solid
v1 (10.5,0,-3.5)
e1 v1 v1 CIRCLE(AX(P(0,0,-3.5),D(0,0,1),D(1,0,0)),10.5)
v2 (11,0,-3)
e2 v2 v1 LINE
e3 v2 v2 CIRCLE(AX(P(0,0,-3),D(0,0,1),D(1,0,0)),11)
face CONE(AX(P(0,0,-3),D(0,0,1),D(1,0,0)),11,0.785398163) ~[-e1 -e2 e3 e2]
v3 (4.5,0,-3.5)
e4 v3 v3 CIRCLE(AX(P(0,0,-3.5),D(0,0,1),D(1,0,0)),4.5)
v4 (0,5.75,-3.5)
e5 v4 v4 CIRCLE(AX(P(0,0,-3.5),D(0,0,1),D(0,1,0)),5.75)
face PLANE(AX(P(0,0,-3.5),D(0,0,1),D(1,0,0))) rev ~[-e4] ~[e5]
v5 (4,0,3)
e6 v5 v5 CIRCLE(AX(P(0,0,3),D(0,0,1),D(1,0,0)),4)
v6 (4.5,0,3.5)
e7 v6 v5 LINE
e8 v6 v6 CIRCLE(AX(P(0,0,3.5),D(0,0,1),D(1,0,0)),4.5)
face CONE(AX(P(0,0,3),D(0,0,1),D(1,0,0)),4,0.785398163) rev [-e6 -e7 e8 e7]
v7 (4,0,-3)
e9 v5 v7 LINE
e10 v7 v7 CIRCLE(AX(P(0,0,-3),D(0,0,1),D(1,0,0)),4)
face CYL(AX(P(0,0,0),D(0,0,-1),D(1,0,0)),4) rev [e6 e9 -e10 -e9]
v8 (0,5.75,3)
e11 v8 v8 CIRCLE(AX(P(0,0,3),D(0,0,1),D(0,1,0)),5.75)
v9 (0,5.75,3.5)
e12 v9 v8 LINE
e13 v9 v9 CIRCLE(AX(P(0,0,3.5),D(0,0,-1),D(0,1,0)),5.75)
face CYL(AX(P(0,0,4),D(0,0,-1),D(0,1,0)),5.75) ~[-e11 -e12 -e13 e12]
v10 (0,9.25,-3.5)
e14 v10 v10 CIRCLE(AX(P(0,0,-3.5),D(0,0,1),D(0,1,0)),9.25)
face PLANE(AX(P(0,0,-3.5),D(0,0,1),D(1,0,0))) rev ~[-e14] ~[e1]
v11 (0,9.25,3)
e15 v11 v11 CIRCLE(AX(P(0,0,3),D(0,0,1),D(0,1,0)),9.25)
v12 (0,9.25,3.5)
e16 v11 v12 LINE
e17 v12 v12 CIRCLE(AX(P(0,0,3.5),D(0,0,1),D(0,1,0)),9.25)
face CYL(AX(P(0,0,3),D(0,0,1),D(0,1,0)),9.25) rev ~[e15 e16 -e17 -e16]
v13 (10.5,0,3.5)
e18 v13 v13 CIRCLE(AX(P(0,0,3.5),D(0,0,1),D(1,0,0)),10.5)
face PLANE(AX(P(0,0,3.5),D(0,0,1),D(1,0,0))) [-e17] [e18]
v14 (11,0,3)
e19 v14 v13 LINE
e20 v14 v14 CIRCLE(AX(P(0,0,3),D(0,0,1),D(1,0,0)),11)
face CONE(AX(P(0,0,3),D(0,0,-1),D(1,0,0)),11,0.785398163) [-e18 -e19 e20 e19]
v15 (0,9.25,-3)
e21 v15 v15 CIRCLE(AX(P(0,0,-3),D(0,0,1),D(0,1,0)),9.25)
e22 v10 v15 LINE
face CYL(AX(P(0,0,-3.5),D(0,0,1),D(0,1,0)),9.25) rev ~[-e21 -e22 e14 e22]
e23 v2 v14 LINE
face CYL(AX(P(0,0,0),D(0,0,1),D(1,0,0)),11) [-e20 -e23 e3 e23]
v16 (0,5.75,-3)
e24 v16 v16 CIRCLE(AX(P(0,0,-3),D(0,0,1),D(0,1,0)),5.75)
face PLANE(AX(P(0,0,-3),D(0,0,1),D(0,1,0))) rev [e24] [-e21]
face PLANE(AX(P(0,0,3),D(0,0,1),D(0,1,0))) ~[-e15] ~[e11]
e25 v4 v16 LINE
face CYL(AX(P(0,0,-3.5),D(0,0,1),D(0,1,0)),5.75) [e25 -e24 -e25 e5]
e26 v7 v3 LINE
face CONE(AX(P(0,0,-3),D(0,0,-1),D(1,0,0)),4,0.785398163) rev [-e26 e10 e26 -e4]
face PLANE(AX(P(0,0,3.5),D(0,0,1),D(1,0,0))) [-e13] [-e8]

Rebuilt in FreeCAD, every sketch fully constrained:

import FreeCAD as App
import Part
import Sketcher

V = App.Vector
Q = App.Units.Quantity


def edges_at(feature, points):
    """Names of the edges that pass closest to the given points."""
    edges = feature.Shape.Edges
    near = lambda p: min(range(len(edges)), key=lambda i: edges[i].distToShape(Part.Vertex(*p))[0])
    return sorted({f"Edge{near(p) + 1}" for p in points})


def add_polygon(sketch, points):
    """Adds a closed chain of lines whose ends are joined by coincident constraints."""
    first, n = sketch.GeometryCount, len(points)
    for a, b in zip(points, points[1:] + points[:1]):
        sketch.addGeometry(Part.LineSegment(App.Vector(*a, 0), App.Vector(*b, 0)), False)
    for i in range(n):
        sketch.addConstraint(Sketcher.Constraint("Coincident", first + i, 2, first + (i + 1) % n, 1))

doc = App.newDocument("Part")
params = doc.addObject("Spreadsheet::Sheet", "Params")
for row, (alias, value) in enumerate([
    ("sketch1_diameter", "22 mm"),
    ("sketch1_diameter2", "8 mm"),
    ("pad1_length", "7 mm"),
    ("chamfer_size", "0.5 mm"),
    ("sketch2_height", "1 mm"),
    ("sketch2_width", "3.5 mm"),
    ("groove_angle", "360 deg"),
], start=1):
    params.set(f"A{row}", alias)
    params.set(f"B{row}", "=" + value)
    params.setAlias(f"B{row}", alias)

body = doc.addObject("PartDesign::Body", "Body")

# Sketch on XY plane
sketch1 = doc.addObject("Sketcher::SketchObject", "Sketch")
body.addObject(sketch1)
sketch1.AttachmentSupport = (doc.XY_Plane, [""])
sketch1.MapMode = "FlatFace"
sketch1.addGeometry(Part.Circle(V(0, 0, 0), V(0, 0, 1), 11), False)
sketch1.addGeometry(Part.Circle(V(0, 0, 0), V(0, 0, 1), 4), False)
sketch1.addConstraint(Sketcher.Constraint("Coincident", 0, 3, -1, 1))
sketch1.addConstraint(Sketcher.Constraint("Coincident", 1, 3, -1, 1))
sketch1.addConstraint(Sketcher.Constraint("Diameter", 0, Q("22 mm")))
sketch1.addConstraint(Sketcher.Constraint("Diameter", 1, Q("8 mm")))
sketch1.setExpression("Constraints[2]", "Params.sketch1_diameter")
sketch1.setExpression("Constraints[3]", "Params.sketch1_diameter2")
pad1 = doc.addObject("PartDesign::Pad", "Pad")
body.addObject(pad1)
pad1.Profile = sketch1
pad1.setExpression("Length", "Params.pad1_length")
pad1.Midplane = True
doc.recompute()

chamfer = doc.addObject("PartDesign::Chamfer", "Chamfer")
body.addObject(chamfer)
chamfer.Base = (pad1, edges_at(pad1, [
    (-11, 0, 3.5),
    (-11, 0, -3.5),
    (-4, 0, 3.5),
    (-4, 0, -3.5),
]))
chamfer.setExpression("Size", "Params.chamfer_size")

# Sketch on YZ plane
sketch2 = doc.addObject("Sketcher::SketchObject", "Sketch001")
body.addObject(sketch2)
sketch2.AttachmentSupport = (doc.YZ_Plane, [""])
sketch2.MapMode = "FlatFace"
add_polygon(sketch2, [(5.8, 4), (5.8, 3), (9.2, 3), (9.2, 4)])  # lines 0-3
add_polygon(sketch2, [(5.8, -3), (5.8, -4), (9.2, -4), (9.2, -3)])  # lines 4-7
sketch2.addConstraint(Sketcher.Constraint("Vertical", 0))
sketch2.addConstraint(Sketcher.Constraint("Horizontal", 1))
sketch2.addConstraint(Sketcher.Constraint("Vertical", 2))
sketch2.addConstraint(Sketcher.Constraint("Horizontal", 3))
sketch2.addConstraint(Sketcher.Constraint("Vertical", 4))
sketch2.addConstraint(Sketcher.Constraint("Horizontal", 5))
sketch2.addConstraint(Sketcher.Constraint("Vertical", 6))
sketch2.addConstraint(Sketcher.Constraint("Horizontal", 7))
sketch2.addConstraint(Sketcher.Constraint("Symmetric", 3, 2, 4, 2, -1))
sketch2.addConstraint(Sketcher.Constraint("Symmetric", 1, 2, 6, 2, -1))
sketch2.addConstraint(Sketcher.Constraint("DistanceY", 0, 2, 0, 1, Q("1 mm")))
sketch2.addConstraint(Sketcher.Constraint("DistanceX", 1, 1, 1, 2, Q("3.5 mm")))
sketch2.addConstraint(Sketcher.Constraint("DistanceY", -1, 1, 0, 2, Q("3 mm")))
sketch2.addConstraint(Sketcher.Constraint("DistanceX", -1, 1, 0, 2, Q("5.75 mm")))
sketch2.setExpression("Constraints[18]", "Params.sketch2_height")
sketch2.setExpression("Constraints[19]", "Params.sketch2_width")
groove = doc.addObject("PartDesign::Groove", "Groove")
body.addObject(groove)
groove.Profile = sketch2
groove.ReferenceAxis = (sketch2, ["V_Axis"])
groove.setExpression("Angle", "Params.groove_angle")

doc.recompute()
